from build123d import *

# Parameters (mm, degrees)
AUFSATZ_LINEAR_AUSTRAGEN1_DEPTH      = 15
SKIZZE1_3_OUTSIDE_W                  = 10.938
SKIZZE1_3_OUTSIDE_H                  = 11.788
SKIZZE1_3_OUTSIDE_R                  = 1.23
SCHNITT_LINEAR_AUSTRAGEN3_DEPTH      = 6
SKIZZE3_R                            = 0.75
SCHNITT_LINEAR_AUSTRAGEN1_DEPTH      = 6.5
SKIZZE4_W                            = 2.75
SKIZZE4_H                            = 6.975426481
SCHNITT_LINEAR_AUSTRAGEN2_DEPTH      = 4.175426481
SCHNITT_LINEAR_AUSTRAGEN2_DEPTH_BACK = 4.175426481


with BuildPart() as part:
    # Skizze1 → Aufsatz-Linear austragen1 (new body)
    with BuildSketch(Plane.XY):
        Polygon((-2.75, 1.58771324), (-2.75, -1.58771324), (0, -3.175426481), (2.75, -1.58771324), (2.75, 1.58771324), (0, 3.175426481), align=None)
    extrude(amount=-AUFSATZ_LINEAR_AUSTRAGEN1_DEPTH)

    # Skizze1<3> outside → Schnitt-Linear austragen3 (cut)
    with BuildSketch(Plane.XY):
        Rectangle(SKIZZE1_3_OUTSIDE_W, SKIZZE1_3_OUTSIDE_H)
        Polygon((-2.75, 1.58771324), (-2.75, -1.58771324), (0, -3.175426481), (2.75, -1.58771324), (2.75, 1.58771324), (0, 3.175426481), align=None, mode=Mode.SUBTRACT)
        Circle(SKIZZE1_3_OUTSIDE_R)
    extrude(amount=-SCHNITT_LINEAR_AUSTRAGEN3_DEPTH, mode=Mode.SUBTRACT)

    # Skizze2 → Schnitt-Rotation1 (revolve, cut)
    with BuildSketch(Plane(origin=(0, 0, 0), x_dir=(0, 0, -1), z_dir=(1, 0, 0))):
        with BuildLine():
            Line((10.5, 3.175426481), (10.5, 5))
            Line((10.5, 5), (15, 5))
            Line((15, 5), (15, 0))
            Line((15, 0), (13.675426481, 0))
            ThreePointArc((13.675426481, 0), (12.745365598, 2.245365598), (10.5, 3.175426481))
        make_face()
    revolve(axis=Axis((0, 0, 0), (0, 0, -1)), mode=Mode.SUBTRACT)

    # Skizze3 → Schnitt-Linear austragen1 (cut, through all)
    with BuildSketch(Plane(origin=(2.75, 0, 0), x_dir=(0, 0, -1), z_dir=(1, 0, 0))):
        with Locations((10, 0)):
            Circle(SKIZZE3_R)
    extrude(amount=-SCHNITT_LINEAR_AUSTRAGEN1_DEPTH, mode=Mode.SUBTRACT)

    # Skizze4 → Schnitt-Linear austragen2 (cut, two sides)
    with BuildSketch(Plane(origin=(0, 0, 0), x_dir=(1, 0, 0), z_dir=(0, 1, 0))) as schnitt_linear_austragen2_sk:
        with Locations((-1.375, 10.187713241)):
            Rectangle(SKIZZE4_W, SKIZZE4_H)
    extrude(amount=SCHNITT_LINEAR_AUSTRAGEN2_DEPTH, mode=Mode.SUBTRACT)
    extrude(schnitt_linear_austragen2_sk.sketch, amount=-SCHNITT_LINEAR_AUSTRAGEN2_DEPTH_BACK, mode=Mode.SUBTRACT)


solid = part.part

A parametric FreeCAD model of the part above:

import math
import FreeCAD as App
import Part
import Sketcher

V = App.Vector
Q = App.Units.Quantity

doc = App.newDocument("Part")
params = doc.addObject("Spreadsheet::Sheet", "Params")
for row, (alias, value) in enumerate([
    ("pad1_length", "15 mm"),
    ("sketch2_diameter", "2.46 mm"),
    ("pocket1_length", "6 mm"),
    ("sketch3_width", "5 mm"),
    ("sketch3_height", "4.5 mm"),
    ("groove_angle", "360 deg"),
    ("sketch4_diameter", "1.5 mm"),
    ("sketch5_width", "2.75 mm"),
], start=1):
    params.set(f"A{row}", alias)
    params.set(f"B{row}", "=" + value)
    params.setAlias(f"B{row}", alias)

body = doc.addObject("PartDesign::Body", "Body")

sketch1 = doc.addObject("Sketcher::SketchObject", "Sketch")
body.addObject(sketch1)
sketch1.AttachmentSupport = (doc.XY_Plane, [""])
sketch1.MapMode = "FlatFace"
sketch1.addGeometry([
    Part.LineSegment(V(-2.75, 1.587713, 0), V(-2.75, -1.587713, 0)),
    Part.LineSegment(V(-2.75, -1.587713, 0), V(0, -3.175426, 0)),
    Part.LineSegment(V(0, -3.175426, 0), V(2.75, -1.587713, 0)),
    Part.LineSegment(V(2.75, -1.587713, 0), V(2.75, 1.587713, 0)),
    Part.LineSegment(V(2.75, 1.587713, 0), V(0, 3.175426, 0)),
    Part.LineSegment(V(0, 3.175426, 0), V(-2.75, 1.587713, 0)),
], False)
sketch1.addConstraint([
    Sketcher.Constraint("Coincident", 0, 2, 1, 1),
    Sketcher.Constraint("Coincident", 1, 2, 2, 1),
    Sketcher.Constraint("Coincident", 2, 2, 3, 1),
    Sketcher.Constraint("Coincident", 3, 2, 4, 1),
    Sketcher.Constraint("Coincident", 4, 2, 5, 1),
    Sketcher.Constraint("Coincident", 5, 2, 0, 1),
    Sketcher.Constraint("Vertical", 0),
    Sketcher.Constraint("Vertical", 3),
    Sketcher.Constraint("Symmetric", 0, 2, 3, 2, -1, 1),
    Sketcher.Constraint("Symmetric", 1, 2, 4, 2, -1, 1),
    Sketcher.Constraint("PointOnObject", 1, 2, -2),
    Sketcher.Constraint("Parallel", 2, 5),
    Sketcher.Constraint("Horizontal", 0, 2, 2, 2),
    Sketcher.Constraint("Angle", 1, Q("-30 deg")),
    Sketcher.Constraint("DistanceX", 0, 2, 2, 2, 5.5),
    Sketcher.Constraint("DistanceY", 0, 2, 0, 1, 3.175426),
])
pad1 = doc.addObject("PartDesign::Pad", "Pad")
body.addObject(pad1)
pad1.Profile = sketch1
pad1.setExpression("Length", "Params.pad1_length")
pad1.Reversed = True

sketch2 = doc.addObject("Sketcher::SketchObject", "Sketch001")
body.addObject(sketch2)
sketch2.AttachmentSupport = (doc.XY_Plane, [""])
sketch2.MapMode = "FlatFace"
sketch2.addGeometry([
    Part.LineSegment(V(-5.469, 5.894, 0), V(-5.469, -5.894, 0)),
    Part.LineSegment(V(-5.469, -5.894, 0), V(5.469, -5.894, 0)),
    Part.LineSegment(V(5.469, -5.894, 0), V(5.469, 5.894, 0)),
    Part.LineSegment(V(5.469, 5.894, 0), V(-5.469, 5.894, 0)),
    Part.LineSegment(V(-2.75, -1.587713, 0), V(-2.75, 1.587713, 0)),
    Part.LineSegment(V(-2.75, 1.587713, 0), V(0, 3.175426, 0)),
    Part.LineSegment(V(0, 3.175426, 0), V(2.75, 1.587713, 0)),
    Part.LineSegment(V(2.75, 1.587713, 0), V(2.75, -1.587713, 0)),
    Part.LineSegment(V(2.75, -1.587713, 0), V(0, -3.175426, 0)),
    Part.LineSegment(V(0, -3.175426, 0), V(-2.75, -1.587713, 0)),
    Part.Circle(V(0, 0, 0), V(0, 0, 1), 1.23),
], False)
sketch2.addConstraint([
    Sketcher.Constraint("Coincident", 0, 2, 1, 1),
    Sketcher.Constraint("Coincident", 1, 2, 2, 1),
    Sketcher.Constraint("Coincident", 2, 2, 3, 1),
    Sketcher.Constraint("Coincident", 3, 2, 0, 1),
    Sketcher.Constraint("Coincident", 4, 2, 5, 1),
    Sketcher.Constraint("Coincident", 5, 2, 6, 1),
    Sketcher.Constraint("Coincident", 6, 2, 7, 1),
    Sketcher.Constraint("Coincident", 7, 2, 8, 1),
    Sketcher.Constraint("Coincident", 8, 2, 9, 1),
    Sketcher.Constraint("Coincident", 9, 2, 4, 1),
    Sketcher.Constraint("Vertical", 0),
    Sketcher.Constraint("Horizontal", 1),
    Sketcher.Constraint("Vertical", 2),
    Sketcher.Constraint("Horizontal", 3),
    Sketcher.Constraint("Vertical", 4),
    Sketcher.Constraint("Vertical", 7),
    Sketcher.Constraint("Coincident", 10, 3, -1, 1),
    Sketcher.Constraint("Symmetric", 0, 2, 2, 2, -1, 1),
    Sketcher.Constraint("Symmetric", 4, 2, 7, 2, -1, 1),
    Sketcher.Constraint("Symmetric", 5, 2, 8, 2, -1, 1),
    Sketcher.Constraint("PointOnObject", 5, 2, -2),
    Sketcher.Constraint("Parallel", 6, 9),
    Sketcher.Constraint("Horizontal", 4, 2, 6, 2),
    Sketcher.Constraint("Diameter", 10, 2.46),
    Sketcher.Constraint("Angle", 5, Q("30 deg")),
    Sketcher.Constraint("DistanceX", 4, 2, 6, 2, 5.5),
    Sketcher.Constraint("DistanceX", 1, 1, 1, 2, 10.938),
    Sketcher.Constraint("DistanceY", 0, 2, 0, 1, 11.788),
    Sketcher.Constraint("DistanceY", 4, 1, 4, 2, 3.175426),
])
sketch2.setExpression("Constraints[23]", "Params.sketch2_diameter")
pocket1 = doc.addObject("PartDesign::Pocket", "Pocket")
body.addObject(pocket1)
pocket1.Profile = sketch2
pocket1.setExpression("Length", "Params.pocket1_length")

sketch3 = doc.addObject("Sketcher::SketchObject", "Sketch002")
body.addObject(sketch3)
sketch3.AttachmentSupport = (doc.YZ_Plane, [""])
sketch3.MapMode = "FlatFace"
sketch3.addGeometry([
    Part.LineSegment(V(5, -10.5, 0), V(3.175426, -10.5, 0)),
    Part.ArcOfCircle(Part.Circle(V(0, -10.5, 0), V(0, 0, 1), 3.175426), math.radians(-90), math.radians(0)),
    Part.LineSegment(V(0, -13.675426, 0), V(0, -15, 0)),
    Part.LineSegment(V(0, -15, 0), V(5, -15, 0)),
    Part.LineSegment(V(5, -15, 0), V(5, -10.5, 0)),
], False)
sketch3.addConstraint([
    Sketcher.Constraint("Coincident", 0, 2, 1, 2),
    Sketcher.Constraint("Coincident", 1, 1, 2, 1),
    Sketcher.Constraint("Coincident", 2, 2, 3, 1),
    Sketcher.Constraint("Coincident", 3, 2, 4, 1),
    Sketcher.Constraint("Coincident", 4, 2, 0, 1),
    Sketcher.Constraint("Horizontal", 0),
    Sketcher.Constraint("Vertical", 2),
    Sketcher.Constraint("Horizontal", 3),
    Sketcher.Constraint("Vertical", 4),
    Sketcher.Constraint("PointOnObject", 1, 3, -2),
    Sketcher.Constraint("PointOnObject", 1, 1, -2),
    Sketcher.Constraint("Horizontal", 1, 3, 0, 2),
    Sketcher.Constraint("DistanceX", 3, 1, 3, 2, 5.0),
    Sketcher.Constraint("DistanceY", 4, 1, 4, 2, 4.5),
    Sketcher.Constraint("DistanceY", 2, 2, -1, 1, 15.0),
    Sketcher.Constraint("Radius", 1, 3.175426),
])
sketch3.setExpression("Constraints[12]", "Params.sketch3_width")
sketch3.setExpression("Constraints[13]", "Params.sketch3_height")
groove = doc.addObject("PartDesign::Groove", "Groove")
body.addObject(groove)
groove.Profile = sketch3
groove.ReferenceAxis = (sketch3, ["V_Axis"])
groove.setExpression("Angle", "Params.groove_angle")

sketch4 = doc.addObject("Sketcher::SketchObject", "Sketch003")
body.addObject(sketch4)
sketch4.AttachmentSupport = (doc.YZ_Plane, [""])
sketch4.MapMode = "FlatFace"
sketch4.AttachmentOffset = App.Placement(V(0, 0, 2.75), App.Rotation())
sketch4.addGeometry(Part.Circle(V(0, -10, 0), V(0, 0, 1), 0.75), False)
sketch4.addConstraint([
    Sketcher.Constraint("PointOnObject", 0, 3, -2),
    Sketcher.Constraint("Diameter", 0, 1.5),
    Sketcher.Constraint("DistanceY", 0, 3, -1, 1, 10.0),
])
sketch4.setExpression("Constraints[1]", "Params.sketch4_diameter")
pocket2 = doc.addObject("PartDesign::Pocket", "Pocket001")
body.addObject(pocket2)
pocket2.Profile = sketch4
pocket2.Type = "ThroughAll"

sketch5 = doc.addObject("Sketcher::SketchObject", "Sketch004")
body.addObject(sketch5)
sketch5.AttachmentSupport = (doc.XZ_Plane, [""])
sketch5.MapMode = "FlatFace"
sketch5.addGeometry([
    Part.LineSegment(V(-2.75, -13.675426, 0), V(-2.75, -6.7, 0)),
    Part.LineSegment(V(-2.75, -6.7, 0), V(0, -6.7, 0)),
    Part.LineSegment(V(0, -6.7, 0), V(0, -13.675426, 0)),
    Part.LineSegment(V(0, -13.675426, 0), V(-2.75, -13.675426, 0)),
], False)
sketch5.addConstraint([
    Sketcher.Constraint("Coincident", 0, 2, 1, 1),
    Sketcher.Constraint("Coincident", 1, 2, 2, 1),
    Sketcher.Constraint("Coincident", 2, 2, 3, 1),
    Sketcher.Constraint("Coincident", 3, 2, 0, 1),
    Sketcher.Constraint("Vertical", 0),
    Sketcher.Constraint("Horizontal", 1),
    Sketcher.Constraint("Vertical", 2),
    Sketcher.Constraint("Horizontal", 3),
    Sketcher.Constraint("PointOnObject", 1, 2, -2),
    Sketcher.Constraint("DistanceX", 1, 1, 1, 2, 2.75),
    Sketcher.Constraint("DistanceY", 0, 2, -1, 1, 6.7),
    Sketcher.Constraint("DistanceY", 0, 1, 0, 2, 6.975426),
])
sketch5.setExpression("Constraints[9]", "Params.sketch5_width")
pocket3 = doc.addObject("PartDesign::Pocket", "Pocket002")
body.addObject(pocket3)
pocket3.Profile = sketch5
pocket3.Type = "ThroughAll"
pocket3.Midplane = True

doc.recompute()
